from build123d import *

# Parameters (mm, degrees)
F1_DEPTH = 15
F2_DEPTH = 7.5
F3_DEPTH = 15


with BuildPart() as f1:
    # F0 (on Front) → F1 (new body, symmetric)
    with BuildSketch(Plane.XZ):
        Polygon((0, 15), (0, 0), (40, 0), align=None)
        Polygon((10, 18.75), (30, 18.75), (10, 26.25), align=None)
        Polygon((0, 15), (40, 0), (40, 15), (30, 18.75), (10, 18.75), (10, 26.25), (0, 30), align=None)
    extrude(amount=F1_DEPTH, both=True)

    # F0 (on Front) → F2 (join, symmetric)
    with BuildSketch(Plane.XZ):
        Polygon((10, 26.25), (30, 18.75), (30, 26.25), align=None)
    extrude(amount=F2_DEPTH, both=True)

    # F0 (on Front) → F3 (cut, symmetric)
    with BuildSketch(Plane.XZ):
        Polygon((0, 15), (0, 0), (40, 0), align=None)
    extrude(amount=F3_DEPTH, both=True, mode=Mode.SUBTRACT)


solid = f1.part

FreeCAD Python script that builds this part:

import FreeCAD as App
import Part
import Sketcher

V = App.Vector
Q = App.Units.Quantity

doc = App.newDocument("Part")
body = doc.addObject("PartDesign::Body", "Body")

sketch1 = body.newObject("Sketcher::SketchObject", "Sketch")
sketch1.AttachmentSupport = (doc.getObject("XZ_Plane"), [""])
sketch1.MapMode = "FlatFace"
sketch1.addGeometry(Part.LineSegment(V(0, 0, 0), V(40, 0, 0)), False)
sketch1.addGeometry(Part.LineSegment(V(40, 0, 0), V(40, 15, 0)), False)
sketch1.addGeometry(Part.LineSegment(V(40, 15, 0), V(0, 30, 0)), False)
sketch1.addGeometry(Part.LineSegment(V(0, 30, 0), V(0, 0, 0)), False)
sketch1.addConstraint(Sketcher.Constraint("Coincident", 0, 2, 1, 1))
sketch1.addConstraint(Sketcher.Constraint("Coincident", 1, 2, 2, 1))
sketch1.addConstraint(Sketcher.Constraint("Coincident", 2, 2, 3, 1))
sketch1.addConstraint(Sketcher.Constraint("Coincident", 3, 2, 0, 1))
sketch1.addConstraint(Sketcher.Constraint("Horizontal", 0))
sketch1.addConstraint(Sketcher.Constraint("Vertical", 1))
sketch1.addConstraint(Sketcher.Constraint("Vertical", 3))
sketch1.addConstraint(Sketcher.Constraint("Coincident", 3, 2, -1, 1))
sketch1.addConstraint(Sketcher.Constraint("DistanceX", 0, 1, 0, 2, Q("40 mm")))
sketch1.addConstraint(Sketcher.Constraint("DistanceY", 1, 1, 1, 2, Q("15 mm")))
sketch1.addConstraint(Sketcher.Constraint("DistanceY", 3, 2, 3, 1, Q("30 mm")))
pad1 = body.newObject("PartDesign::Pad", "Pad")
pad1.Profile = sketch1
pad1.Length = 30
pad1.Midplane = True

sketch2 = body.newObject("Sketcher::SketchObject", "Sketch001")
sketch2.AttachmentSupport = (doc.getObject("XZ_Plane"), [""])
sketch2.MapMode = "FlatFace"
sketch2.addGeometry(Part.LineSegment(V(10, 26.25, 0), V(30, 18.75, 0)), False)
sketch2.addGeometry(Part.LineSegment(V(30, 18.75, 0), V(30, 26.25, 0)), False)
sketch2.addGeometry(Part.LineSegment(V(30, 26.25, 0), V(10, 26.25, 0)), False)
sketch2.addConstraint(Sketcher.Constraint("Coincident", 0, 2, 1, 1))
sketch2.addConstraint(Sketcher.Constraint("Coincident", 1, 2, 2, 1))
sketch2.addConstraint(Sketcher.Constraint("Coincident", 2, 2, 0, 1))
sketch2.addConstraint(Sketcher.Constraint("Vertical", 1))
sketch2.addConstraint(Sketcher.Constraint("Horizontal", 2))
sketch2.addConstraint(Sketcher.Constraint("DistanceX", 2, 2, 2, 1, Q("20 mm")))
sketch2.addConstraint(Sketcher.Constraint("DistanceY", 1, 1, 1, 2, Q("7.5 mm")))
sketch2.addConstraint(Sketcher.Constraint("DistanceX", -1, 1, 0, 2, Q("30 mm")))
sketch2.addConstraint(Sketcher.Constraint("DistanceY", -1, 1, 0, 2, Q("18.75 mm")))
pad2 = body.newObject("PartDesign::Pad", "Pad001")
pad2.Profile = sketch2
pad2.Length = 15
pad2.Midplane = True

sketch3 = body.newObject("Sketcher::SketchObject", "Sketch002")
sketch3.AttachmentSupport = (doc.getObject("XZ_Plane"), [""])
sketch3.MapMode = "FlatFace"
sketch3.addGeometry(Part.LineSegment(V(0, 15, 0), V(0, 0, 0)), False)
sketch3.addGeometry(Part.LineSegment(V(0, 0, 0), V(40, 0, 0)), False)
sketch3.addGeometry(Part.LineSegment(V(40, 0, 0), V(0, 15, 0)), False)
sketch3.addConstraint(Sketcher.Constraint("Coincident", 0, 2, 1, 1))
sketch3.addConstraint(Sketcher.Constraint("Coincident", 1, 2, 2, 1))
sketch3.addConstraint(Sketcher.Constraint("Coincident", 2, 2, 0, 1))
sketch3.addConstraint(Sketcher.Constraint("Vertical", 0))
sketch3.addConstraint(Sketcher.Constraint("Horizontal", 1))
sketch3.addConstraint(Sketcher.Constraint("Coincident", 0, 2, -1, 1))
sketch3.addConstraint(Sketcher.Constraint("DistanceX", 1, 1, 1, 2, Q("40 mm")))
sketch3.addConstraint(Sketcher.Constraint("DistanceY", 0, 2, 0, 1, Q("15 mm")))
pocket1 = body.newObject("PartDesign::Pocket", "Pocket")
pocket1.Profile = sketch3
pocket1.Length = 30
pocket1.Midplane = True

doc.recompute()
